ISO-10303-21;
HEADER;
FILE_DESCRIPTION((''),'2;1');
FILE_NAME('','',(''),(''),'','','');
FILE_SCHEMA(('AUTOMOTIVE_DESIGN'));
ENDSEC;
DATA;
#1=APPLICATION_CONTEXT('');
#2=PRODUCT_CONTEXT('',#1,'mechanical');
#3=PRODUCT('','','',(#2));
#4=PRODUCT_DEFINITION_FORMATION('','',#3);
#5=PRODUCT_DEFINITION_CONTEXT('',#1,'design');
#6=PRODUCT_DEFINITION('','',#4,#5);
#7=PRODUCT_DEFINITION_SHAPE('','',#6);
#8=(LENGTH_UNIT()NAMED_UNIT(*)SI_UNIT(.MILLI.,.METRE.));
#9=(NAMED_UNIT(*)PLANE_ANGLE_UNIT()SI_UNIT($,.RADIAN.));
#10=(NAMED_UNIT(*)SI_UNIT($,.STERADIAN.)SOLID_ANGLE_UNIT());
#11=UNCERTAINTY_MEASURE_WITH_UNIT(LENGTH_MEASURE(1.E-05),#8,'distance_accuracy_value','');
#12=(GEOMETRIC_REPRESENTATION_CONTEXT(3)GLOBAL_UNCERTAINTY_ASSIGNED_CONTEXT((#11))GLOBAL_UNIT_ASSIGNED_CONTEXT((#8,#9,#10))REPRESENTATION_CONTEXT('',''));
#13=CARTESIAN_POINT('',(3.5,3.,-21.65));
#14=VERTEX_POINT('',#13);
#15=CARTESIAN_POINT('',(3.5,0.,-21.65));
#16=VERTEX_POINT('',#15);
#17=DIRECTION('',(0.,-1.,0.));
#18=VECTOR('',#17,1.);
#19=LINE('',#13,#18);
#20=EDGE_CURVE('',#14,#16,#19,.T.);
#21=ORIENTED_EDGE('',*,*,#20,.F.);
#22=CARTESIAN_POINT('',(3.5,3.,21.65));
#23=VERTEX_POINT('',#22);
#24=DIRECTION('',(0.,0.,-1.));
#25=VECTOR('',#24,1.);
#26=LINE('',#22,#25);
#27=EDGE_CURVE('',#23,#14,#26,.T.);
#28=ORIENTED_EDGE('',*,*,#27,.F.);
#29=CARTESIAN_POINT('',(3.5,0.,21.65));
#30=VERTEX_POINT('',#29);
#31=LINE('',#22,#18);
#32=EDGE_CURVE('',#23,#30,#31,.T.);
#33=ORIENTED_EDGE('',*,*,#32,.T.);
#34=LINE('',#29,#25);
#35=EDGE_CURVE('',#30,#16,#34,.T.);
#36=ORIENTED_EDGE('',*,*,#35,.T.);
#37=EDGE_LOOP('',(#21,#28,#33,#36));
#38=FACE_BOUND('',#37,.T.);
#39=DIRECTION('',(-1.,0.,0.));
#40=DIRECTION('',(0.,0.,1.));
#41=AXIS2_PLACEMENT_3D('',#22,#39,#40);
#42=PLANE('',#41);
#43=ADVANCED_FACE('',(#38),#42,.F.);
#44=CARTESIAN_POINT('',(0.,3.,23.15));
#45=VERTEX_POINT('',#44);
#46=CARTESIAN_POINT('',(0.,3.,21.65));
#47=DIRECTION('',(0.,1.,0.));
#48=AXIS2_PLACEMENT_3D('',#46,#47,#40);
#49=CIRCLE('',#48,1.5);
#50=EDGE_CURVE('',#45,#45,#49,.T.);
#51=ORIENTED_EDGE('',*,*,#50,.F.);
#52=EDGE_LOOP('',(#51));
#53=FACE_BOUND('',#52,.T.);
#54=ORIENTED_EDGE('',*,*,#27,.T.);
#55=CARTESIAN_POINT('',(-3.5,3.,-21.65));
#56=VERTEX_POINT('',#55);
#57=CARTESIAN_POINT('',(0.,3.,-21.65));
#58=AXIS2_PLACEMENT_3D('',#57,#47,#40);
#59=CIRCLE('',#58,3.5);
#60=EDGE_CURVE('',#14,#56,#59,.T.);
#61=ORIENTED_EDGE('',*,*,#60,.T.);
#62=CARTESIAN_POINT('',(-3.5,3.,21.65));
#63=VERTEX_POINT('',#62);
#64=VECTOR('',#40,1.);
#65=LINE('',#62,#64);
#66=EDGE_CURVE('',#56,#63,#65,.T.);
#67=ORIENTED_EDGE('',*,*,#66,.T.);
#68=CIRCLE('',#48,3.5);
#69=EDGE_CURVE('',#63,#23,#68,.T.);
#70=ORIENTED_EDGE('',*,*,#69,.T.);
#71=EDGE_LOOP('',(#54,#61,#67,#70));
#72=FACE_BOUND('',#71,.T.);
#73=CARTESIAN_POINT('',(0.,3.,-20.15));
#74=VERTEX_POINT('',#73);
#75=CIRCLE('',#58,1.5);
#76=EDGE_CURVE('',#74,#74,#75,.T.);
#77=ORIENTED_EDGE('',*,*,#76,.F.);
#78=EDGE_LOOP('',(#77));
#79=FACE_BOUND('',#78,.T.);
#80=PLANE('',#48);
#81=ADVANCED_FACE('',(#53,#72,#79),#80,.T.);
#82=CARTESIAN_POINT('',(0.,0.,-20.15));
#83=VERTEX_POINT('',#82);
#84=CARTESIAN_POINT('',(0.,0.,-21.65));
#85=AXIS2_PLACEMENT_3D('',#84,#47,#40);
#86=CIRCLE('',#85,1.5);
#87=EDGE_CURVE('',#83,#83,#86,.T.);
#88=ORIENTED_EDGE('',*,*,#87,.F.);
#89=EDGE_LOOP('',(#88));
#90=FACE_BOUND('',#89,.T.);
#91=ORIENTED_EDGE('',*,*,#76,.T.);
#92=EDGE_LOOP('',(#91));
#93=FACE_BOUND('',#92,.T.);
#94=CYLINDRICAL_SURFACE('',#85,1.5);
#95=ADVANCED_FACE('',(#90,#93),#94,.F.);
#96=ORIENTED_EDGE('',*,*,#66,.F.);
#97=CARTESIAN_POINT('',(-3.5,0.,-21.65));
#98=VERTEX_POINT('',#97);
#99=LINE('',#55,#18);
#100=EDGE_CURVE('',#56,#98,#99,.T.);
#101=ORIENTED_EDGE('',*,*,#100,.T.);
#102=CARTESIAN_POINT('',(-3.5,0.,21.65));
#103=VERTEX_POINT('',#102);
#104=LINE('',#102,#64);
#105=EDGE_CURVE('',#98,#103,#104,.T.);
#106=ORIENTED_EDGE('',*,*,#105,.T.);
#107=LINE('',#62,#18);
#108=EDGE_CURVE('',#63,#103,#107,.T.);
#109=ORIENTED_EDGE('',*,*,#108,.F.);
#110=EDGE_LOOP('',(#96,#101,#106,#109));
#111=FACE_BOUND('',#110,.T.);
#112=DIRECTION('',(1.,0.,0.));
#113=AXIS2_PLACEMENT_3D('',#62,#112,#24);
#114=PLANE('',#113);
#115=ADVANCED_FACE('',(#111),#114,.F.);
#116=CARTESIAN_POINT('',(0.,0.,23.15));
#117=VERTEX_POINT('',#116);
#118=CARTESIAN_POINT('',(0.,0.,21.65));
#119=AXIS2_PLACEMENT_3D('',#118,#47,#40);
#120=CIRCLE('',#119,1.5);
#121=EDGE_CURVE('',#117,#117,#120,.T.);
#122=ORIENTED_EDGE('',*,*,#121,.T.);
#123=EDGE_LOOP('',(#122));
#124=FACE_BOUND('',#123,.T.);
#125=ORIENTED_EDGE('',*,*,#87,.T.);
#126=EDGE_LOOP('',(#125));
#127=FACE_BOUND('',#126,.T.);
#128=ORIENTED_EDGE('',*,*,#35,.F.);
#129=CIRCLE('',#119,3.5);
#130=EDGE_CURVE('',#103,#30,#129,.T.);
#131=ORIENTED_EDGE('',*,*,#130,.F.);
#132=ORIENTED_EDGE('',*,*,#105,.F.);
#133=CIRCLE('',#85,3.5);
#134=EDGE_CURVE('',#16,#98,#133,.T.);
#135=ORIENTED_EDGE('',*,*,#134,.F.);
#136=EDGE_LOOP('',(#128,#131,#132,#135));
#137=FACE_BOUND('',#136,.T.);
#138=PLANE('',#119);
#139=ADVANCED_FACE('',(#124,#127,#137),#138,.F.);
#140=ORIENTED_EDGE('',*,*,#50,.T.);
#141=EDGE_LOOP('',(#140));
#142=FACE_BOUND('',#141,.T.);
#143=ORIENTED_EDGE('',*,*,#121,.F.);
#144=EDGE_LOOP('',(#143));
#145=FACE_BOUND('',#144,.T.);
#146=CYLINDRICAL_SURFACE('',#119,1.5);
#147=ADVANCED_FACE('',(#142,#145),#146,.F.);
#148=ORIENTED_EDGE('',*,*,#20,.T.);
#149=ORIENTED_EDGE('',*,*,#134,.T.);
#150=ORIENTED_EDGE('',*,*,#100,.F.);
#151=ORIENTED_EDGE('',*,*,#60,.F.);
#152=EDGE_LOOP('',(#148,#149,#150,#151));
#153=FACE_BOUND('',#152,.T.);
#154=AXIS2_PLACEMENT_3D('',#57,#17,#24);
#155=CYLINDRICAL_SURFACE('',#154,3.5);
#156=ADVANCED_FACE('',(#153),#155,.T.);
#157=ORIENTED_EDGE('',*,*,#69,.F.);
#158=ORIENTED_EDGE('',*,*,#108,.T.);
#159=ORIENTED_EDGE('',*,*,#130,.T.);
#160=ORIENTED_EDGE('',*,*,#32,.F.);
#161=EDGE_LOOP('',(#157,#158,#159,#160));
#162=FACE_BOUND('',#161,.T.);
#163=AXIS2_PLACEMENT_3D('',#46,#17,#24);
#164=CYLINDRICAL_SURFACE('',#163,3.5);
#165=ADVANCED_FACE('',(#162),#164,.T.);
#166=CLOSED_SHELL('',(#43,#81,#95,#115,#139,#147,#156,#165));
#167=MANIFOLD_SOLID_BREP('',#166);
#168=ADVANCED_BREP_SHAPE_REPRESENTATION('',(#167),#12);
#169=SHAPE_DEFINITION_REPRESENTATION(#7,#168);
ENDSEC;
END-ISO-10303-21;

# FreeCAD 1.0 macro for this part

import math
import FreeCAD as App
import Part
import Sketcher

doc = App.newDocument("Part")
body = doc.addObject("PartDesign::Body", "Body")

# Sketch on XZ plane
sketch1 = doc.addObject("Sketcher::SketchObject", "Sketch")
body.addObject(sketch1)
sketch1.AttachmentSupport = (doc.XZ_Plane, [""])
sketch1.MapMode = "FlatFace"
sketch1.addGeometry(Part.LineSegment(App.Vector(-3.5, -21.6, 0), App.Vector(-3.5, 21.6, 0)), False)
sketch1.addGeometry(Part.ArcOfCircle(Part.Circle(App.Vector(0, 21.6, 0), App.Vector(0, 0, 1), 3.5), math.radians(0), math.radians(180)), False)
sketch1.addGeometry(Part.LineSegment(App.Vector(3.5, 21.6, 0), App.Vector(3.5, -21.6, 0)), False)
sketch1.addGeometry(Part.ArcOfCircle(Part.Circle(App.Vector(0, -21.6, 0), App.Vector(0, 0, 1), 3.5), math.radians(180), math.radians(360)), False)
sketch1.addConstraint(Sketcher.Constraint("Tangent", 0, 2, 1, 2))
sketch1.addConstraint(Sketcher.Constraint("Tangent", 1, 1, 2, 1))
sketch1.addConstraint(Sketcher.Constraint("Tangent", 2, 2, 3, 2))
sketch1.addConstraint(Sketcher.Constraint("Tangent", 3, 1, 0, 1))
sketch1.addConstraint(Sketcher.Constraint("Vertical", 0))
sketch1.addConstraint(Sketcher.Constraint("Vertical", 2))
sketch1.addConstraint(Sketcher.Constraint("Symmetric", 1, 3, 3, 3, -1, 1))
sketch1.addConstraint(Sketcher.Constraint("Radius", 1, 3.5))
sketch1.addConstraint(Sketcher.Constraint("DistanceY", 0, 1, 0, 2, 43.3))
pad1 = doc.addObject("PartDesign::Pad", "Pad")
body.addObject(pad1)
pad1.Profile = sketch1
pad1.Length = 3
pad1.Reversed = True

# Sketch on XZ plane
sketch2 = doc.addObject("Sketcher::SketchObject", "Sketch001")
body.addObject(sketch2)
sketch2.AttachmentSupport = (doc.XZ_Plane, [""])
sketch2.MapMode = "FlatFace"
sketch2.AttachmentOffset = App.Placement(App.Vector(0, 0, -3), App.Rotation())
sketch2.addGeometry(Part.Circle(App.Vector(0, -21.6, 0), App.Vector(0, 0, 1), 1.5), False)
sketch2.addGeometry(Part.Circle(App.Vector(0, 21.6, 0), App.Vector(0, 0, 1), 1.5), False)
sketch2.addConstraint(Sketcher.Constraint("Equal", 0, 1))
sketch2.addConstraint(Sketcher.Constraint("Symmetric", 0, 3, 1, 3, -1, 1))
sketch2.addConstraint(Sketcher.Constraint("PointOnObject", 0, 3, -2))
sketch2.addConstraint(Sketcher.Constraint("Diameter", 0, 3.0))
sketch2.addConstraint(Sketcher.Constraint("DistanceY", 0, 3, 1, 3, 43.3))
pocket1 = doc.addObject("PartDesign::Pocket", "Pocket")
body.addObject(pocket1)
pocket1.Profile = sketch2
pocket1.Length = 3
pocket1.Reversed = True

doc.recompute()
